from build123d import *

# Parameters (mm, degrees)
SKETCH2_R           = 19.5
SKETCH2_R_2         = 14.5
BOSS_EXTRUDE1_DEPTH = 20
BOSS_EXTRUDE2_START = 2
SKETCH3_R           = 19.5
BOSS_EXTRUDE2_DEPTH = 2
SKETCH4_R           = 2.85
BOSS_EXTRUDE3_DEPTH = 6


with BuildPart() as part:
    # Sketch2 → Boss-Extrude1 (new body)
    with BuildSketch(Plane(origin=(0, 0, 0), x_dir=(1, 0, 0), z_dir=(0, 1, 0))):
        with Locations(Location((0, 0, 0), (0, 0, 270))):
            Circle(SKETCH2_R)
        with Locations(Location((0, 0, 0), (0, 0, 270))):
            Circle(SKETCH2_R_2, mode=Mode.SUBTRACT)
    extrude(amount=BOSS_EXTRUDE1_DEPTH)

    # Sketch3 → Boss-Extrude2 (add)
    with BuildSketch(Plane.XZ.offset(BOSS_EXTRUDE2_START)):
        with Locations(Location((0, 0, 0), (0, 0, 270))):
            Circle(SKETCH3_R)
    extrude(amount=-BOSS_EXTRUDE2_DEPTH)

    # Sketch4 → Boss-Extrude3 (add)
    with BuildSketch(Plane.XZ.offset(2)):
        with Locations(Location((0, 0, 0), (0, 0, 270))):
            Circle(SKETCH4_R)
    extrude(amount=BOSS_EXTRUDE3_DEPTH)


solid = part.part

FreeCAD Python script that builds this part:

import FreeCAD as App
import Part
import Sketcher

V = App.Vector

doc = App.newDocument("Part")
body = doc.addObject("PartDesign::Body", "Body")

# Sketch on XZ plane
sketch1 = body.newObject("Sketcher::SketchObject", "Sketch")
sketch1.AttachmentSupport = (doc.getObject("XZ_Plane"), [""])
sketch1.MapMode = "FlatFace"
sketch1.addGeometry([
    Part.Circle(V(0, 0, 0), V(0, 0, 1), 20),
    Part.Circle(V(0, 0, 0), V(0, 0, 1), 14),
], False)
sketch1.addConstraint([
    Sketcher.Constraint("Coincident", 0, 3, -1, 1),
    Sketcher.Constraint("Coincident", 1, 3, -1, 1),
    Sketcher.Constraint("Diameter", 0, 39.0),
    Sketcher.Constraint("Diameter", 1, 29.0),
])
pad1 = body.newObject("PartDesign::Pad", "Pad")
pad1.Profile = sketch1
pad1.Length = 20
pad1.Reversed = True

# Sketch on XZ plane
sketch2 = body.newObject("Sketcher::SketchObject", "Sketch001")
sketch2.AttachmentSupport = (doc.getObject("XZ_Plane"), [""])
sketch2.MapMode = "FlatFace"
sketch2.AttachmentOffset = App.Placement(V(0, 0, 2), App.Rotation())
sketch2.addGeometry(Part.Circle(V(0, 0, 0), V(0, 0, 1), 20), False)
sketch2.addConstraint([
    Sketcher.Constraint("Coincident", 0, 3, -1, 1),
    Sketcher.Constraint("Diameter", 0, 39.0),
])
pad2 = body.newObject("PartDesign::Pad", "Pad001")
pad2.Profile = sketch2
pad2.Length = 2
pad2.Reversed = True

# Sketch on XZ plane
sketch3 = body.newObject("Sketcher::SketchObject", "Sketch002")
sketch3.AttachmentSupport = (doc.getObject("XZ_Plane"), [""])
sketch3.MapMode = "FlatFace"
sketch3.AttachmentOffset = App.Placement(V(0, 0, 2), App.Rotation())
sketch3.addGeometry(Part.Circle(V(0, 0, 0), V(0, 0, 1), 2.9), False)
sketch3.addConstraint([
    Sketcher.Constraint("Coincident", 0, 3, -1, 1),
    Sketcher.Constraint("Diameter", 0, 5.7),
])
pad3 = body.newObject("PartDesign::Pad", "Pad002")
pad3.Profile = sketch3
pad3.Length = 6

doc.recompute()
